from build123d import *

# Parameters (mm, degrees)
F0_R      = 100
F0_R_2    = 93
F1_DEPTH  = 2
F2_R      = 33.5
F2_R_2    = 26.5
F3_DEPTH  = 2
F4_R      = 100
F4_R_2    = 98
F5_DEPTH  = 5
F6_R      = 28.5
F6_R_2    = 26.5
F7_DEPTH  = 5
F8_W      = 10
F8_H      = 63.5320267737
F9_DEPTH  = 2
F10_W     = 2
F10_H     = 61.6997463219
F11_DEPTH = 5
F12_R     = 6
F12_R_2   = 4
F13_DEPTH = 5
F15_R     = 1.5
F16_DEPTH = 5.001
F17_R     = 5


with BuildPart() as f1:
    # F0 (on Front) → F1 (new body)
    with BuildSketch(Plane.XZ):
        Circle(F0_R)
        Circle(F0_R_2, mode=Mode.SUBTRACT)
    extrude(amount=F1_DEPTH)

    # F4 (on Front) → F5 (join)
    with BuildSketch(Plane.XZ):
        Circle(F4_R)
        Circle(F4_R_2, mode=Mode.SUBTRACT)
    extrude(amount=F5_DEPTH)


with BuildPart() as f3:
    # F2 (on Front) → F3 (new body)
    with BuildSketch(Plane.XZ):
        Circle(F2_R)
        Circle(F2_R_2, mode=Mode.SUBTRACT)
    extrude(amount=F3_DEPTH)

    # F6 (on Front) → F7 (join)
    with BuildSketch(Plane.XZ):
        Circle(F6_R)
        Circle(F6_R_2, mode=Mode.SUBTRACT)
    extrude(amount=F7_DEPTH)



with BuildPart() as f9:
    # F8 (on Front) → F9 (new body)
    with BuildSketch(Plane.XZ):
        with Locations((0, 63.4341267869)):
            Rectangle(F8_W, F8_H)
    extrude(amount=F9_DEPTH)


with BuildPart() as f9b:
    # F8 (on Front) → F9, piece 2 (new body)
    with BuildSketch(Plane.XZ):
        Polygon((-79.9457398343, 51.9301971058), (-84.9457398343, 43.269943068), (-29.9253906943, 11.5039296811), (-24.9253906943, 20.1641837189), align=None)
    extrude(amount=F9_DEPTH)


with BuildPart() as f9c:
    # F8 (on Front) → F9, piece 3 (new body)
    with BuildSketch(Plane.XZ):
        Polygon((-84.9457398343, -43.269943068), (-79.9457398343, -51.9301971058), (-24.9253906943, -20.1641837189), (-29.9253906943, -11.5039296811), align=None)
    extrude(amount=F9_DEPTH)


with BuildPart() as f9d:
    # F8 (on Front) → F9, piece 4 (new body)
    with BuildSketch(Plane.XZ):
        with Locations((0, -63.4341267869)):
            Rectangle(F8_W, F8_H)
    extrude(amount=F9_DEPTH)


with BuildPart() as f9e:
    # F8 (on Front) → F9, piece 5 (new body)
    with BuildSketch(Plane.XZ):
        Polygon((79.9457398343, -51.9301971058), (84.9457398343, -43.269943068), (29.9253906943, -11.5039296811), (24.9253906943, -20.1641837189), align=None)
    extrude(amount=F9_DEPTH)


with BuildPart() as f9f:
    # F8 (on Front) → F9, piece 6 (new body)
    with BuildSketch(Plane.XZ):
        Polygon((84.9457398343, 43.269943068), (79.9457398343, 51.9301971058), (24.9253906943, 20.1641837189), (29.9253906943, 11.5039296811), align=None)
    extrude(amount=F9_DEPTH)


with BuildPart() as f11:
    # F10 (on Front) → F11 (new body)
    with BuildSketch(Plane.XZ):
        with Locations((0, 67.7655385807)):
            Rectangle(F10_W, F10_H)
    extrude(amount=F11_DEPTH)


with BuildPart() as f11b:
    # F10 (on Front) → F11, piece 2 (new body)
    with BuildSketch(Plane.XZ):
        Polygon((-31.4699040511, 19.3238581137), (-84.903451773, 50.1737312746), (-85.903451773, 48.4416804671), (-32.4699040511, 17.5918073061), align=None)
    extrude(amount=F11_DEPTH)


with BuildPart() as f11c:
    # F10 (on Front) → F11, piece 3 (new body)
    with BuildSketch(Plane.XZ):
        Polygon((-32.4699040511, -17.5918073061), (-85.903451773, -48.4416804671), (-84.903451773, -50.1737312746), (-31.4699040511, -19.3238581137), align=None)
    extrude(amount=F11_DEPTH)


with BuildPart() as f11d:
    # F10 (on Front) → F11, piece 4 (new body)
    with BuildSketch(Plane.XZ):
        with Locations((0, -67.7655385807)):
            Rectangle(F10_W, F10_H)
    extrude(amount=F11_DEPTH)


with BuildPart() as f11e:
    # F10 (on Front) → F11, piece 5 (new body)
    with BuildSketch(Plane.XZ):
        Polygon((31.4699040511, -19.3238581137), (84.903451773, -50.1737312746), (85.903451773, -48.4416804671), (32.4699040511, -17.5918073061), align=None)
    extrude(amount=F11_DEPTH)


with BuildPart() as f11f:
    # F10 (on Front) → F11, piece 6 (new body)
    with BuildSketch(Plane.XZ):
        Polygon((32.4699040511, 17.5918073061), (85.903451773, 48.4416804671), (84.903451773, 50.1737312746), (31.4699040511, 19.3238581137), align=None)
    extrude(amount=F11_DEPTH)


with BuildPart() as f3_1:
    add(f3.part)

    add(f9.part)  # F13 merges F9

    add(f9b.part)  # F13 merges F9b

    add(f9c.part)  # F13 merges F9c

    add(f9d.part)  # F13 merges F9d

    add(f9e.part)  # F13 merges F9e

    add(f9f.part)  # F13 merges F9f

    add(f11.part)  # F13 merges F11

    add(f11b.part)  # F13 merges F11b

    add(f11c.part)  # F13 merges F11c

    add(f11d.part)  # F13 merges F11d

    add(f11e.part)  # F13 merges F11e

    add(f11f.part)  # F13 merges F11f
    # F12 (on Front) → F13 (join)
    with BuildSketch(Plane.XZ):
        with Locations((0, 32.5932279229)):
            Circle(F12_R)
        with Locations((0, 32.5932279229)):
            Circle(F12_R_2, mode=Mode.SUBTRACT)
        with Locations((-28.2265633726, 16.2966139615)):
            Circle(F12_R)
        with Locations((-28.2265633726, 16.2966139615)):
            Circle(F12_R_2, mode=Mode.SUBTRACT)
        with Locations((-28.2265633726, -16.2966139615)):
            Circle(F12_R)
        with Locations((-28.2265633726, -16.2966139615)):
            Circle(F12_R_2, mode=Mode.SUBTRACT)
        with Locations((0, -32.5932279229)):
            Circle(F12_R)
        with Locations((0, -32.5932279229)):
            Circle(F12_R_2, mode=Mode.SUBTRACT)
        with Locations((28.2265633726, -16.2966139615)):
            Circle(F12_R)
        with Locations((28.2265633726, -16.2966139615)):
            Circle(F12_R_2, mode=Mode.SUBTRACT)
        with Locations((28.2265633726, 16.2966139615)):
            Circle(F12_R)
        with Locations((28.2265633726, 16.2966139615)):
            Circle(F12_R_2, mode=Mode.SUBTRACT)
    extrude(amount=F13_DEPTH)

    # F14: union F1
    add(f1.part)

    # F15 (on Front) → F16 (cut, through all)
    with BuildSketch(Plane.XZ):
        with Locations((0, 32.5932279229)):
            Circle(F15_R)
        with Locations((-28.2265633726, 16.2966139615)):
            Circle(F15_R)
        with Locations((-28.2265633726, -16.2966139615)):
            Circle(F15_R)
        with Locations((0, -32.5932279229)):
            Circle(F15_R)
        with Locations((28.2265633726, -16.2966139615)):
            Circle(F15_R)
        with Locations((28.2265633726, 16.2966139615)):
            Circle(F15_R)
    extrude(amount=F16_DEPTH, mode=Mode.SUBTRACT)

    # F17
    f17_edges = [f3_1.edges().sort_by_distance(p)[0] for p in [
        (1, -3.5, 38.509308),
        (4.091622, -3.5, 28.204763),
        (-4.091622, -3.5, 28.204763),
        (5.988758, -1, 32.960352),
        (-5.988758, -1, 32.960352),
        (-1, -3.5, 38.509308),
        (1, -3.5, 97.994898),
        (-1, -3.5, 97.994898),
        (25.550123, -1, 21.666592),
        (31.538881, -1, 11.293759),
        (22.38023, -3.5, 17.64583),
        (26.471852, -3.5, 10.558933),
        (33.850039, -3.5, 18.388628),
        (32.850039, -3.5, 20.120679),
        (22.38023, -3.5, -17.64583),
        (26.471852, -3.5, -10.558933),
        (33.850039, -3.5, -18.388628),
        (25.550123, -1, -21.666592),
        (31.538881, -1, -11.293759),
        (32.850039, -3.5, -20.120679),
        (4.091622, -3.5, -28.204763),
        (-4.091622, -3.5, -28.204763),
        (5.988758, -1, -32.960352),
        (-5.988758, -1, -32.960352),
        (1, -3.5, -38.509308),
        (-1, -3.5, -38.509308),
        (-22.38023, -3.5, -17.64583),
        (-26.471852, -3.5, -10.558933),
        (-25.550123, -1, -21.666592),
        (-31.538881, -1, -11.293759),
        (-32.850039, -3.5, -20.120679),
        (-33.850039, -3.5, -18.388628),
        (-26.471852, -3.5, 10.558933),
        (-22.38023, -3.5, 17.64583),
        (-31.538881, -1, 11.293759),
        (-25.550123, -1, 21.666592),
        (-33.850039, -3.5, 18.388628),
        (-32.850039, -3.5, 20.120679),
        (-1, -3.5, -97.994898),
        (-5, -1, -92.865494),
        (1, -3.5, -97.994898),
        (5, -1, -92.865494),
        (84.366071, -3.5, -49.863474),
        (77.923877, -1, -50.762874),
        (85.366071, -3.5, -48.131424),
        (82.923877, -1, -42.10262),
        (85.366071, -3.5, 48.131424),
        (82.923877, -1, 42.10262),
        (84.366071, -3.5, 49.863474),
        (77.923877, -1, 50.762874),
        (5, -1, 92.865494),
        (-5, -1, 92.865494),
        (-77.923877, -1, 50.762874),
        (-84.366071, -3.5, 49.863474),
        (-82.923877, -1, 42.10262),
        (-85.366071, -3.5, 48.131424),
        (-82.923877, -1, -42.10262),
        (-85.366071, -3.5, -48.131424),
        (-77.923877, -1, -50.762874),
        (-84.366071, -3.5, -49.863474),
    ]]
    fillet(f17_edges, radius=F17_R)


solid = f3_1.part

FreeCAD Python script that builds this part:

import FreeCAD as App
import Part
import Sketcher
Q = App.Units.Quantity


def edges_at(feature, points):
    """Names of the edges that pass closest to the given points."""
    edges = feature.Shape.Edges
    near = lambda p: min(range(len(edges)), key=lambda i: edges[i].distToShape(Part.Vertex(*p))[0])
    return sorted({f"Edge{near(p) + 1}" for p in points})


def add_polygon(sketch, points):
    """Adds a closed chain of lines whose ends are joined by coincident constraints."""
    first, n = sketch.GeometryCount, len(points)
    for a, b in zip(points, points[1:] + points[:1]):
        sketch.addGeometry(Part.LineSegment(App.Vector(*a, 0), App.Vector(*b, 0)), False)
    for i in range(n):
        sketch.addConstraint(Sketcher.Constraint("Coincident", first + i, 2, first + (i + 1) % n, 1))

doc = App.newDocument("Part")
body = doc.addObject("PartDesign::Body", "Body")

# Sketch on XZ plane
sketch1 = body.newObject("Sketcher::SketchObject", "Sketch")
sketch1.AttachmentSupport = (doc.getObject("XZ_Plane"), [""])
sketch1.MapMode = "FlatFace"
sketch1.addGeometry(Part.Circle(App.Vector(0, 0, 0), App.Vector(0, 0, 1), 100), False)
sketch1.addGeometry(Part.Circle(App.Vector(0, 0, 0), App.Vector(0, 0, 1), 93), False)
sketch1.addConstraint(Sketcher.Constraint("Coincident", 0, 3, -1, 1))
sketch1.addConstraint(Sketcher.Constraint("Coincident", 1, 3, -1, 1))
sketch1.addConstraint(Sketcher.Constraint("Diameter", 0, 200.0))
sketch1.addConstraint(Sketcher.Constraint("Diameter", 1, 186.0))
pad1 = body.newObject("PartDesign::Pad", "Pad")
pad1.Profile = sketch1
pad1.Length = 2

# Sketch on XZ plane
sketch2 = body.newObject("Sketcher::SketchObject", "Sketch001")
sketch2.AttachmentSupport = (doc.getObject("XZ_Plane"), [""])
sketch2.MapMode = "FlatFace"
sketch2.addGeometry(Part.Circle(App.Vector(0, 0, 0), App.Vector(0, 0, 1), 100), False)
sketch2.addGeometry(Part.Circle(App.Vector(0, 0, 0), App.Vector(0, 0, 1), 98), False)
sketch2.addConstraint(Sketcher.Constraint("Coincident", 0, 3, -1, 1))
sketch2.addConstraint(Sketcher.Constraint("Coincident", 1, 3, -1, 1))
sketch2.addConstraint(Sketcher.Constraint("Diameter", 0, 200.0))
sketch2.addConstraint(Sketcher.Constraint("Diameter", 1, 196.0))
pad2 = body.newObject("PartDesign::Pad", "Pad001")
pad2.Profile = sketch2
pad2.Length = 5
body2 = doc.addObject("PartDesign::Body", "Body001")

# Sketch on XZ plane
sketch3 = body2.newObject("Sketcher::SketchObject", "Sketch002")
sketch3.AttachmentSupport = (doc.getObject("XZ_Plane001"), [""])
sketch3.MapMode = "FlatFace"
sketch3.addGeometry(Part.Circle(App.Vector(0, 0, 0), App.Vector(0, 0, 1), 33.5), False)
sketch3.addGeometry(Part.Circle(App.Vector(0, 0, 0), App.Vector(0, 0, 1), 26.5), False)
sketch3.addConstraint(Sketcher.Constraint("Coincident", 0, 3, -1, 1))
sketch3.addConstraint(Sketcher.Constraint("Coincident", 1, 3, -1, 1))
sketch3.addConstraint(Sketcher.Constraint("Diameter", 0, 67.0))
sketch3.addConstraint(Sketcher.Constraint("Diameter", 1, 53.0))
pad3 = body2.newObject("PartDesign::Pad", "Pad002")
pad3.Profile = sketch3
pad3.Length = 2

# Sketch on XZ plane
sketch4 = body2.newObject("Sketcher::SketchObject", "Sketch003")
sketch4.AttachmentSupport = (doc.getObject("XZ_Plane001"), [""])
sketch4.MapMode = "FlatFace"
sketch4.addGeometry(Part.Circle(App.Vector(0, 0, 0), App.Vector(0, 0, 1), 28.5), False)
sketch4.addGeometry(Part.Circle(App.Vector(0, 0, 0), App.Vector(0, 0, 1), 26.5), False)
sketch4.addConstraint(Sketcher.Constraint("Coincident", 0, 3, -1, 1))
sketch4.addConstraint(Sketcher.Constraint("Coincident", 1, 3, -1, 1))
sketch4.addConstraint(Sketcher.Constraint("Diameter", 0, 57.0))
sketch4.addConstraint(Sketcher.Constraint("Diameter", 1, 53.0))
pad4 = body2.newObject("PartDesign::Pad", "Pad003")
pad4.Profile = sketch4
pad4.Length = 5
body3 = doc.addObject("PartDesign::Body", "Body002")

# Sketch on XZ plane
sketch5 = body3.newObject("Sketcher::SketchObject", "Sketch004")
sketch5.AttachmentSupport = (doc.getObject("XZ_Plane002"), [""])
sketch5.MapMode = "FlatFace"
add_polygon(sketch5, [(-5, 95.20014), (-5, 31.668113), (5, 31.668113), (5, 95.20014)])  # lines 0-3
sketch5.addConstraint(Sketcher.Constraint("Vertical", 0))
sketch5.addConstraint(Sketcher.Constraint("Horizontal", 1))
sketch5.addConstraint(Sketcher.Constraint("Vertical", 2))
sketch5.addConstraint(Sketcher.Constraint("Horizontal", 3))
sketch5.addConstraint(Sketcher.Constraint("DistanceX", 1, 1, 1, 2, 10.0))
sketch5.addConstraint(Sketcher.Constraint("DistanceX", 0, 2, -1, 1, 5.0))
sketch5.addConstraint(Sketcher.Constraint("DistanceY", 0, 2, 0, 1, 63.532027))
sketch5.addConstraint(Sketcher.Constraint("DistanceY", -1, 1, 2, 2, 95.20014))
pad5 = body3.newObject("PartDesign::Pad", "Pad004")
pad5.Profile = sketch5
pad5.Length = 2
body4 = doc.addObject("PartDesign::Body", "Body003")

# Sketch on XZ plane
sketch6 = body4.newObject("Sketcher::SketchObject", "Sketch005")
sketch6.AttachmentSupport = (doc.getObject("XZ_Plane003"), [""])
sketch6.MapMode = "FlatFace"
add_polygon(sketch6, [(-79.94574, 51.930197), (-84.94574, 43.269943), (-29.925391, 11.50393), (-24.925391, 20.164184)])  # lines 0-3
sketch6.addConstraint(Sketcher.Constraint("Perpendicular", 0, 1))
sketch6.addConstraint(Sketcher.Constraint("Perpendicular", 1, 2))
sketch6.addConstraint(Sketcher.Constraint("Perpendicular", 2, 3))
sketch6.addConstraint(Sketcher.Constraint("Angle", 0, Q("-120 deg")))
sketch6.addConstraint(Sketcher.Constraint("Distance", 0, 10.0))
sketch6.addConstraint(Sketcher.Constraint("DistanceX", 0, 2, -1, 1, 84.94574))
sketch6.addConstraint(Sketcher.Constraint("DistanceX", 1, 2, -1, 1, 29.925391))
sketch6.addConstraint(Sketcher.Constraint("DistanceY", -1, 1, 1, 2, 11.50393))
pad6 = body4.newObject("PartDesign::Pad", "Pad005")
pad6.Profile = sketch6
pad6.Length = 2
body5 = doc.addObject("PartDesign::Body", "Body004")

# Sketch on XZ plane
sketch7 = body5.newObject("Sketcher::SketchObject", "Sketch006")
sketch7.AttachmentSupport = (doc.getObject("XZ_Plane004"), [""])
sketch7.MapMode = "FlatFace"
add_polygon(sketch7, [(-84.94574, -43.269943), (-79.94574, -51.930197), (-24.925391, -20.164184), (-29.925391, -11.50393)])  # lines 0-3
sketch7.addConstraint(Sketcher.Constraint("Perpendicular", 0, 1))
sketch7.addConstraint(Sketcher.Constraint("Perpendicular", 1, 2))
sketch7.addConstraint(Sketcher.Constraint("Perpendicular", 2, 3))
sketch7.addConstraint(Sketcher.Constraint("Angle", 0, Q("-60 deg")))
sketch7.addConstraint(Sketcher.Constraint("Distance", 0, 10.0))
sketch7.addConstraint(Sketcher.Constraint("DistanceX", 0, 2, -1, 1, 79.94574))
sketch7.addConstraint(Sketcher.Constraint("DistanceX", 1, 2, -1, 1, 24.925391))
sketch7.addConstraint(Sketcher.Constraint("DistanceY", 2, 2, -1, 1, 11.50393))
pad7 = body5.newObject("PartDesign::Pad", "Pad006")
pad7.Profile = sketch7
pad7.Length = 2
body6 = doc.addObject("PartDesign::Body", "Body005")

# Sketch on XZ plane
sketch8 = body6.newObject("Sketcher::SketchObject", "Sketch007")
sketch8.AttachmentSupport = (doc.getObject("XZ_Plane005"), [""])
sketch8.MapMode = "FlatFace"
add_polygon(sketch8, [(-5, -31.668113), (-5, -95.20014), (5, -95.20014), (5, -31.668113)])  # lines 0-3
sketch8.addConstraint(Sketcher.Constraint("Vertical", 0))
sketch8.addConstraint(Sketcher.Constraint("Horizontal", 1))
sketch8.addConstraint(Sketcher.Constraint("Vertical", 2))
sketch8.addConstraint(Sketcher.Constraint("Horizontal", 3))
sketch8.addConstraint(Sketcher.Constraint("DistanceX", 1, 1, 1, 2, 10.0))
sketch8.addConstraint(Sketcher.Constraint("DistanceX", 0, 2, -1, 1, 5.0))
sketch8.addConstraint(Sketcher.Constraint("DistanceY", 0, 2, 0, 1, 63.532027))
sketch8.addConstraint(Sketcher.Constraint("DistanceY", 0, 2, -1, 1, 95.20014))
pad8 = body6.newObject("PartDesign::Pad", "Pad007")
pad8.Profile = sketch8
pad8.Length = 2
body7 = doc.addObject("PartDesign::Body", "Body006")

# Sketch on XZ plane
sketch9 = body7.newObject("Sketcher::SketchObject", "Sketch008")
sketch9.AttachmentSupport = (doc.getObject("XZ_Plane006"), [""])
sketch9.MapMode = "FlatFace"
add_polygon(sketch9, [(79.94574, -51.930197), (84.94574, -43.269943), (29.925391, -11.50393), (24.925391, -20.164184)])  # lines 0-3
sketch9.addConstraint(Sketcher.Constraint("Perpendicular", 0, 1))
sketch9.addConstraint(Sketcher.Constraint("Perpendicular", 1, 2))
sketch9.addConstraint(Sketcher.Constraint("Perpendicular", 2, 3))
sketch9.addConstraint(Sketcher.Constraint("Angle", 0, Q("60 deg")))
sketch9.addConstraint(Sketcher.Constraint("Distance", 0, 10.0))
sketch9.addConstraint(Sketcher.Constraint("DistanceX", -1, 1, 0, 2, 84.94574))
sketch9.addConstraint(Sketcher.Constraint("DistanceX", -1, 1, 1, 2, 29.925391))
sketch9.addConstraint(Sketcher.Constraint("DistanceY", 1, 2, -1, 1, 11.50393))
pad9 = body7.newObject("PartDesign::Pad", "Pad008")
pad9.Profile = sketch9
pad9.Length = 2
body8 = doc.addObject("PartDesign::Body", "Body007")

# Sketch on XZ plane
sketch10 = body8.newObject("Sketcher::SketchObject", "Sketch009")
sketch10.AttachmentSupport = (doc.getObject("XZ_Plane007"), [""])
sketch10.MapMode = "FlatFace"
add_polygon(sketch10, [(84.94574, 43.269943), (79.94574, 51.930197), (24.925391, 20.164184), (29.925391, 11.50393)])  # lines 0-3
sketch10.addConstraint(Sketcher.Constraint("Perpendicular", 0, 1))
sketch10.addConstraint(Sketcher.Constraint("Perpendicular", 1, 2))
sketch10.addConstraint(Sketcher.Constraint("Perpendicular", 2, 3))
sketch10.addConstraint(Sketcher.Constraint("Angle", 0, Q("120 deg")))
sketch10.addConstraint(Sketcher.Constraint("Distance", 0, 10.0))
sketch10.addConstraint(Sketcher.Constraint("DistanceX", -1, 1, 0, 2, 79.94574))
sketch10.addConstraint(Sketcher.Constraint("DistanceX", -1, 1, 1, 2, 24.925391))
sketch10.addConstraint(Sketcher.Constraint("DistanceY", -1, 1, 2, 2, 11.50393))
pad10 = body8.newObject("PartDesign::Pad", "Pad009")
pad10.Profile = sketch10
pad10.Length = 2
body9 = doc.addObject("PartDesign::Body", "Body008")

# Sketch on XZ plane
sketch11 = body9.newObject("Sketcher::SketchObject", "Sketch010")
sketch11.AttachmentSupport = (doc.getObject("XZ_Plane008"), [""])
sketch11.MapMode = "FlatFace"
add_polygon(sketch11, [(-1, 98.615412), (-1, 36.915665), (1, 36.915665), (1, 98.615412)])  # lines 0-3
sketch11.addConstraint(Sketcher.Constraint("Vertical", 0))
sketch11.addConstraint(Sketcher.Constraint("Horizontal", 1))
sketch11.addConstraint(Sketcher.Constraint("Vertical", 2))
sketch11.addConstraint(Sketcher.Constraint("Horizontal", 3))
sketch11.addConstraint(Sketcher.Constraint("DistanceX", 1, 1, 1, 2, 2.0))
sketch11.addConstraint(Sketcher.Constraint("DistanceX", 0, 2, -1, 1, 1.0))
sketch11.addConstraint(Sketcher.Constraint("DistanceY", 0, 2, 0, 1, 61.699746))
sketch11.addConstraint(Sketcher.Constraint("DistanceY", -1, 1, 2, 2, 98.615412))
pad11 = body9.newObject("PartDesign::Pad", "Pad010")
pad11.Profile = sketch11
pad11.Length = 5
body10 = doc.addObject("PartDesign::Body", "Body009")

# Sketch on XZ plane
sketch12 = body10.newObject("Sketcher::SketchObject", "Sketch011")
sketch12.AttachmentSupport = (doc.getObject("XZ_Plane009"), [""])
sketch12.MapMode = "FlatFace"
add_polygon(sketch12, [(-31.469904, 19.323858), (-84.903452, 50.173731), (-85.903452, 48.44168), (-32.469904, 17.591807)])  # lines 0-3
sketch12.addConstraint(Sketcher.Constraint("Perpendicular", 0, 1))
sketch12.addConstraint(Sketcher.Constraint("Perpendicular", 1, 2))
sketch12.addConstraint(Sketcher.Constraint("Perpendicular", 2, 3))
sketch12.addConstraint(Sketcher.Constraint("Angle", 0, Q("150 deg")))
sketch12.addConstraint(Sketcher.Constraint("Distance", 1, 2.0))
sketch12.addConstraint(Sketcher.Constraint("DistanceX", 0, 2, -1, 1, 84.903452))
sketch12.addConstraint(Sketcher.Constraint("DistanceY", -1, 1, 0, 2, 50.173731))
sketch12.addConstraint(Sketcher.Constraint("DistanceY", -1, 1, 3, 2, 19.323858))
pad12 = body10.newObject("PartDesign::Pad", "Pad011")
pad12.Profile = sketch12
pad12.Length = 5
body11 = doc.addObject("PartDesign::Body", "Body010")

# Sketch on XZ plane
sketch13 = body11.newObject("Sketcher::SketchObject", "Sketch012")
sketch13.AttachmentSupport = (doc.getObject("XZ_Plane010"), [""])
sketch13.MapMode = "FlatFace"
add_polygon(sketch13, [(-32.469904, -17.591807), (-85.903452, -48.44168), (-84.903452, -50.173731), (-31.469904, -19.323858)])  # lines 0-3
sketch13.addConstraint(Sketcher.Constraint("Perpendicular", 0, 1))
sketch13.addConstraint(Sketcher.Constraint("Perpendicular", 1, 2))
sketch13.addConstraint(Sketcher.Constraint("Perpendicular", 2, 3))
sketch13.addConstraint(Sketcher.Constraint("Angle", 0, Q("-150 deg")))
sketch13.addConstraint(Sketcher.Constraint("Distance", 1, 2.0))
sketch13.addConstraint(Sketcher.Constraint("DistanceX", 0, 2, -1, 1, 85.903452))
sketch13.addConstraint(Sketcher.Constraint("DistanceY", 0, 2, -1, 1, 48.44168))
sketch13.addConstraint(Sketcher.Constraint("DistanceY", 2, 2, -1, 1, 19.323858))
pad13 = body11.newObject("PartDesign::Pad", "Pad012")
pad13.Profile = sketch13
pad13.Length = 5
body12 = doc.addObject("PartDesign::Body", "Body011")

# Sketch on XZ plane
sketch14 = body12.newObject("Sketcher::SketchObject", "Sketch013")
sketch14.AttachmentSupport = (doc.getObject("XZ_Plane011"), [""])
sketch14.MapMode = "FlatFace"
add_polygon(sketch14, [(-1, -36.915665), (-1, -98.615412), (1, -98.615412), (1, -36.915665)])  # lines 0-3
sketch14.addConstraint(Sketcher.Constraint("Vertical", 0))
sketch14.addConstraint(Sketcher.Constraint("Horizontal", 1))
sketch14.addConstraint(Sketcher.Constraint("Vertical", 2))
sketch14.addConstraint(Sketcher.Constraint("Horizontal", 3))
sketch14.addConstraint(Sketcher.Constraint("DistanceX", 1, 1, 1, 2, 2.0))
sketch14.addConstraint(Sketcher.Constraint("DistanceX", 0, 2, -1, 1, 1.0))
sketch14.addConstraint(Sketcher.Constraint("DistanceY", 0, 2, 0, 1, 61.699746))
sketch14.addConstraint(Sketcher.Constraint("DistanceY", 0, 2, -1, 1, 98.615412))
pad14 = body12.newObject("PartDesign::Pad", "Pad013")
pad14.Profile = sketch14
pad14.Length = 5
body13 = doc.addObject("PartDesign::Body", "Body012")

# Sketch on XZ plane
sketch15 = body13.newObject("Sketcher::SketchObject", "Sketch014")
sketch15.AttachmentSupport = (doc.getObject("XZ_Plane012"), [""])
sketch15.MapMode = "FlatFace"
add_polygon(sketch15, [(31.469904, -19.323858), (84.903452, -50.173731), (85.903452, -48.44168), (32.469904, -17.591807)])  # lines 0-3
sketch15.addConstraint(Sketcher.Constraint("Perpendicular", 0, 1))
sketch15.addConstraint(Sketcher.Constraint("Perpendicular", 1, 2))
sketch15.addConstraint(Sketcher.Constraint("Perpendicular", 2, 3))
sketch15.addConstraint(Sketcher.Constraint("Angle", 0, Q("-30 deg")))
sketch15.addConstraint(Sketcher.Constraint("Distance", 1, 2.0))
sketch15.addConstraint(Sketcher.Constraint("DistanceX", -1, 1, 0, 2, 84.903452))
sketch15.addConstraint(Sketcher.Constraint("DistanceY", 0, 2, -1, 1, 50.173731))
sketch15.addConstraint(Sketcher.Constraint("DistanceY", 3, 2, -1, 1, 19.323858))
pad15 = body13.newObject("PartDesign::Pad", "Pad014")
pad15.Profile = sketch15
pad15.Length = 5
body14 = doc.addObject("PartDesign::Body", "Body013")

# Sketch on XZ plane
sketch16 = body14.newObject("Sketcher::SketchObject", "Sketch015")
sketch16.AttachmentSupport = (doc.getObject("XZ_Plane013"), [""])
sketch16.MapMode = "FlatFace"
add_polygon(sketch16, [(32.469904, 17.591807), (85.903452, 48.44168), (84.903452, 50.173731), (31.469904, 19.323858)])  # lines 0-3
sketch16.addConstraint(Sketcher.Constraint("Perpendicular", 0, 1))
sketch16.addConstraint(Sketcher.Constraint("Perpendicular", 1, 2))
sketch16.addConstraint(Sketcher.Constraint("Perpendicular", 2, 3))
sketch16.addConstraint(Sketcher.Constraint("Angle", 0, Q("30 deg")))
sketch16.addConstraint(Sketcher.Constraint("Distance", 1, 2.0))
sketch16.addConstraint(Sketcher.Constraint("DistanceX", -1, 1, 0, 2, 85.903452))
sketch16.addConstraint(Sketcher.Constraint("DistanceY", -1, 1, 0, 2, 48.44168))
sketch16.addConstraint(Sketcher.Constraint("DistanceY", -1, 1, 2, 2, 19.323858))
pad16 = body14.newObject("PartDesign::Pad", "Pad015")
pad16.Profile = sketch16
pad16.Length = 5
doc.recompute()

boolean = body2.newObject("PartDesign::Boolean", "Boolean")
boolean.Type = "Fuse"
boolean.addObjects([body3])
doc.recompute()

boolean2 = body2.newObject("PartDesign::Boolean", "Boolean001")
boolean2.Type = "Fuse"
boolean2.addObjects([body4])
doc.recompute()

boolean3 = body2.newObject("PartDesign::Boolean", "Boolean002")
boolean3.Type = "Fuse"
boolean3.addObjects([body5])
doc.recompute()

boolean4 = body2.newObject("PartDesign::Boolean", "Boolean003")
boolean4.Type = "Fuse"
boolean4.addObjects([body6])
doc.recompute()

boolean5 = body2.newObject("PartDesign::Boolean", "Boolean004")
boolean5.Type = "Fuse"
boolean5.addObjects([body7])
doc.recompute()

boolean6 = body2.newObject("PartDesign::Boolean", "Boolean005")
boolean6.Type = "Fuse"
boolean6.addObjects([body8])
doc.recompute()

boolean7 = body2.newObject("PartDesign::Boolean", "Boolean006")
boolean7.Type = "Fuse"
boolean7.addObjects([body9])
doc.recompute()

boolean8 = body2.newObject("PartDesign::Boolean", "Boolean007")
boolean8.Type = "Fuse"
boolean8.addObjects([body10])
doc.recompute()

boolean9 = body2.newObject("PartDesign::Boolean", "Boolean008")
boolean9.Type = "Fuse"
boolean9.addObjects([body11])
doc.recompute()

boolean10 = body2.newObject("PartDesign::Boolean", "Boolean009")
boolean10.Type = "Fuse"
boolean10.addObjects([body12])
doc.recompute()

boolean11 = body2.newObject("PartDesign::Boolean", "Boolean010")
boolean11.Type = "Fuse"
boolean11.addObjects([body13])
doc.recompute()

boolean12 = body2.newObject("PartDesign::Boolean", "Boolean011")
boolean12.Type = "Fuse"
boolean12.addObjects([body14])

# Sketch on XZ plane
sketch17 = body2.newObject("Sketcher::SketchObject", "Sketch016")
sketch17.AttachmentSupport = (doc.getObject("XZ_Plane001"), [""])
sketch17.MapMode = "FlatFace"
sketch17.addGeometry(Part.Circle(App.Vector(0, 32.593228, 0), App.Vector(0, 0, 1), 6), False)
sketch17.addGeometry(Part.Circle(App.Vector(0, 32.593228, 0), App.Vector(0, 0, 1), 4), False)
sketch17.addGeometry(Part.Circle(App.Vector(-28.226563, 16.296614, 0), App.Vector(0, 0, 1), 6), False)
sketch17.addGeometry(Part.Circle(App.Vector(-28.226563, 16.296614, 0), App.Vector(0, 0, 1), 4), False)
sketch17.addGeometry(Part.Circle(App.Vector(-28.226563, -16.296614, 0), App.Vector(0, 0, 1), 6), False)
sketch17.addGeometry(Part.Circle(App.Vector(-28.226563, -16.296614, 0), App.Vector(0, 0, 1), 4), False)
sketch17.addGeometry(Part.Circle(App.Vector(0, -32.593228, 0), App.Vector(0, 0, 1), 6), False)
sketch17.addGeometry(Part.Circle(App.Vector(0, -32.593228, 0), App.Vector(0, 0, 1), 4), False)
sketch17.addGeometry(Part.Circle(App.Vector(28.226563, -16.296614, 0), App.Vector(0, 0, 1), 6), False)
sketch17.addGeometry(Part.Circle(App.Vector(28.226563, -16.296614, 0), App.Vector(0, 0, 1), 4), False)
sketch17.addGeometry(Part.Circle(App.Vector(28.226563, 16.296614, 0), App.Vector(0, 0, 1), 6), False)
sketch17.addGeometry(Part.Circle(App.Vector(28.226563, 16.296614, 0), App.Vector(0, 0, 1), 4), False)
sketch17.addConstraint(Sketcher.Constraint("Coincident", 1, 3, 0, 3))
sketch17.addConstraint(Sketcher.Constraint("Coincident", 3, 3, 2, 3))
sketch17.addConstraint(Sketcher.Constraint("Coincident", 5, 3, 4, 3))
sketch17.addConstraint(Sketcher.Constraint("Coincident", 7, 3, 6, 3))
sketch17.addConstraint(Sketcher.Constraint("Coincident", 9, 3, 8, 3))
sketch17.addConstraint(Sketcher.Constraint("Coincident", 11, 3, 10, 3))
sketch17.addConstraint(Sketcher.Constraint("Equal", 0, 2))
sketch17.addConstraint(Sketcher.Constraint("Equal", 1, 3))
sketch17.addConstraint(Sketcher.Constraint("Equal", 2, 4))
sketch17.addConstraint(Sketcher.Constraint("Equal", 3, 5))
sketch17.addConstraint(Sketcher.Constraint("Equal", 4, 6))
sketch17.addConstraint(Sketcher.Constraint("Equal", 5, 7))
sketch17.addConstraint(Sketcher.Constraint("Equal", 6, 8))
sketch17.addConstraint(Sketcher.Constraint("Equal", 7, 9))
sketch17.addConstraint(Sketcher.Constraint("Equal", 8, 10))
sketch17.addConstraint(Sketcher.Constraint("Equal", 9, 11))
sketch17.addConstraint(Sketcher.Constraint("Symmetric", 0, 3, 6, 3, -1, 1))
sketch17.addConstraint(Sketcher.Constraint("Symmetric", 2, 3, 8, 3, -1, 1))
sketch17.addConstraint(Sketcher.Constraint("Symmetric", 4, 3, 10, 3, -1, 1))
sketch17.addConstraint(Sketcher.Constraint("Symmetric", 4, 3, 8, 3, -2))
sketch17.addConstraint(Sketcher.Constraint("PointOnObject", 0, 3, -2))
sketch17.addConstraint(Sketcher.Constraint("Diameter", 0, 12.0))
sketch17.addConstraint(Sketcher.Constraint("Diameter", 1, 8.0))
sketch17.addConstraint(Sketcher.Constraint("DistanceY", 4, 3, 0, 3, 48.889842))
sketch17.addConstraint(Sketcher.Constraint("DistanceY", -1, 1, 0, 3, 32.593228))
sketch17.addConstraint(Sketcher.Constraint("DistanceX", 2, 3, -1, 1, 28.226563))
pad17 = body2.newObject("PartDesign::Pad", "Pad016")
pad17.Profile = sketch17
pad17.Length = 5
doc.recompute()

boolean13 = body2.newObject("PartDesign::Boolean", "Boolean012")
boolean13.Type = "Fuse"
boolean13.addObjects([body])

# Sketch on XZ plane
sketch18 = body2.newObject("Sketcher::SketchObject", "Sketch017")
sketch18.AttachmentSupport = (doc.getObject("XZ_Plane001"), [""])
sketch18.MapMode = "FlatFace"
sketch18.addGeometry(Part.Circle(App.Vector(0, 32.593228, 0), App.Vector(0, 0, 1), 1.5), False)
sketch18.addGeometry(Part.Circle(App.Vector(-28.226563, 16.296614, 0), App.Vector(0, 0, 1), 1.5), False)
sketch18.addGeometry(Part.Circle(App.Vector(-28.226563, -16.296614, 0), App.Vector(0, 0, 1), 1.5), False)
sketch18.addGeometry(Part.Circle(App.Vector(0, -32.593228, 0), App.Vector(0, 0, 1), 1.5), False)
sketch18.addGeometry(Part.Circle(App.Vector(28.226563, -16.296614, 0), App.Vector(0, 0, 1), 1.5), False)
sketch18.addGeometry(Part.Circle(App.Vector(28.226563, 16.296614, 0), App.Vector(0, 0, 1), 1.5), False)
sketch18.addConstraint(Sketcher.Constraint("Equal", 0, 1))
sketch18.addConstraint(Sketcher.Constraint("Equal", 1, 2))
sketch18.addConstraint(Sketcher.Constraint("Equal", 2, 3))
sketch18.addConstraint(Sketcher.Constraint("Equal", 3, 4))
sketch18.addConstraint(Sketcher.Constraint("Equal", 4, 5))
sketch18.addConstraint(Sketcher.Constraint("Symmetric", 0, 3, 3, 3, -1, 1))
sketch18.addConstraint(Sketcher.Constraint("Symmetric", 1, 3, 4, 3, -1, 1))
sketch18.addConstraint(Sketcher.Constraint("Symmetric", 2, 3, 5, 3, -1, 1))
sketch18.addConstraint(Sketcher.Constraint("Symmetric", 2, 3, 4, 3, -2))
sketch18.addConstraint(Sketcher.Constraint("PointOnObject", 0, 3, -2))
sketch18.addConstraint(Sketcher.Constraint("Diameter", 0, 3.0))
sketch18.addConstraint(Sketcher.Constraint("DistanceY", 2, 3, 0, 3, 48.889842))
sketch18.addConstraint(Sketcher.Constraint("DistanceY", -1, 1, 0, 3, 32.593228))
sketch18.addConstraint(Sketcher.Constraint("DistanceX", 1, 3, -1, 1, 28.226563))
pocket1 = body2.newObject("PartDesign::Pocket", "Pocket")
pocket1.Profile = sketch18
pocket1.Type = "ThroughAll"
pocket1.Reversed = True
doc.recompute()

fillet = body2.newObject("PartDesign::Fillet", "Fillet")
fillet.Base = (pocket1, edges_at(pocket1, [
    (1, -3.5, 38.509),
    (4.092, -3.5, 28.205),
    (-4.092, -3.5, 28.205),
    (5.989, -1, 32.96),
    (-5.989, -1, 32.96),
    (-1, -3.5, 38.509),
    (1, -3.5, 97.995),
    (-1, -3.5, 97.995),
    (25.55, -1, 21.667),
    (31.539, -1, 11.294),
    (22.38, -3.5, 17.646),
    (26.472, -3.5, 10.559),
    (33.85, -3.5, 18.389),
    (32.85, -3.5, 20.121),
    (22.38, -3.5, -17.646),
    (26.472, -3.5, -10.559),
    (33.85, -3.5, -18.389),
    (25.55, -1, -21.667),
    (31.539, -1, -11.294),
    (32.85, -3.5, -20.121),
    (4.092, -3.5, -28.205),
    (-4.092, -3.5, -28.205),
    (5.989, -1, -32.96),
    (-5.989, -1, -32.96),
    (1, -3.5, -38.509),
    (-1, -3.5, -38.509),
    (-22.38, -3.5, -17.646),
    (-26.472, -3.5, -10.559),
    (-25.55, -1, -21.667),
    (-31.539, -1, -11.294),
    (-32.85, -3.5, -20.121),
    (-33.85, -3.5, -18.389),
    (-26.472, -3.5, 10.559),
    (-22.38, -3.5, 17.646),
    (-31.539, -1, 11.294),
    (-25.55, -1, 21.667),
    (-33.85, -3.5, 18.389),
    (-32.85, -3.5, 20.121),
    (-1, -3.5, -97.995),
    (-5, -1, -92.865),
    (1, -3.5, -97.995),
    (5, -1, -92.865),
    (84.366, -3.5, -49.863),
    (77.924, -1, -50.763),
    (85.366, -3.5, -48.131),
    (82.924, -1, -42.103),
    (85.366, -3.5, 48.131),
    (82.924, -1, 42.103),
    (84.366, -3.5, 49.863),
    (77.924, -1, 50.763),
    (5, -1, 92.865),
    (-5, -1, 92.865),
    (-77.924, -1, 50.763),
    (-84.366, -3.5, 49.863),
    (-82.924, -1, 42.103),
    (-85.366, -3.5, 48.131),
    (-82.924, -1, -42.103),
    (-85.366, -3.5, -48.131),
    (-77.924, -1, -50.763),
    (-84.366, -3.5, -49.863),
]))
fillet.Radius = 5

doc.recompute()
